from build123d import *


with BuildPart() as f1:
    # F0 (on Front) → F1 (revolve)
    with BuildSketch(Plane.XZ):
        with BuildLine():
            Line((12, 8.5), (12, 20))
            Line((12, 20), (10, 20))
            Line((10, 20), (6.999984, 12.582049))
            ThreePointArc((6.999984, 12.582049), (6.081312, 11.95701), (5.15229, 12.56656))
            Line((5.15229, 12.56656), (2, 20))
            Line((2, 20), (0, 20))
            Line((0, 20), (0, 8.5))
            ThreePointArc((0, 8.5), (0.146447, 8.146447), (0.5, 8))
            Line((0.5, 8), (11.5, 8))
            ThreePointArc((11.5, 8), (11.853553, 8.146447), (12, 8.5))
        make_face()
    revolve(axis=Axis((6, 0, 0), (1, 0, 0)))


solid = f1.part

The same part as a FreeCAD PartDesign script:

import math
import FreeCAD as App
import Part
import Sketcher
from FreeCAD import Vector
Q = App.Units.Quantity

doc = App.newDocument("Part")
body = doc.addObject("PartDesign::Body", "Body")

# Sketch on XZ plane
sketch1 = body.newObject("Sketcher::SketchObject", "Sketch")
sketch1.AttachmentSupport = (doc.getObject("XZ_Plane"), [""])
sketch1.MapMode = "FlatFace"
sketch1.addGeometry([
    Part.LineSegment(Vector(12, 8.5, 0), Vector(12, 20, 0)),  # 0
    Part.LineSegment(Vector(12, 20, 0), Vector(10, 20, 0)),  # 1
    Part.LineSegment(Vector(10, 20, 0), Vector(6.999984, 12.582049, 0)),  # 2
    Part.ArcOfCircle(Part.Circle(Vector(6.072929, 12.956975, 0), Vector(0, 0, 1), 1), math.radians(-157.019679), math.radians(-22.019736)),  # 3
    Part.LineSegment(Vector(5.15229, 12.56656, 0), Vector(2, 20, 0)),  # 4
    Part.LineSegment(Vector(2, 20, 0), Vector(0, 20, 0)),  # 5
    Part.LineSegment(Vector(0, 20, 0), Vector(0, 8.5, 0)),  # 6
    Part.ArcOfCircle(Part.Circle(Vector(0.500001, 8.500001, 0), Vector(0, 0, 1), 0.500001), math.radians(-179.999847), math.radians(-90.000153)),  # 7
    Part.LineSegment(Vector(0.5, 8, 0), Vector(11.5, 8, 0)),  # 8
    Part.ArcOfCircle(Part.Circle(Vector(11.499999, 8.500001, 0), Vector(0, 0, 1), 0.500001), math.radians(-89.999847), math.radians(-0.000153)),  # 9
], False)
sketch1.addConstraint([
    Sketcher.Constraint("Coincident", 0, 2, 1, 1),
    Sketcher.Constraint("Coincident", 1, 2, 2, 1),
    Sketcher.Constraint("Tangent", 2, 2, 3, 2),
    Sketcher.Constraint("Tangent", 3, 1, 4, 1),
    Sketcher.Constraint("Coincident", 4, 2, 5, 1),
    Sketcher.Constraint("Coincident", 5, 2, 6, 1),
    Sketcher.Constraint("Coincident", 6, 2, 7, 1),
    Sketcher.Constraint("Coincident", 7, 2, 8, 1),
    Sketcher.Constraint("Coincident", 8, 2, 9, 1),
    Sketcher.Constraint("Coincident", 9, 2, 0, 1),
    Sketcher.Constraint("Vertical", 0),
    Sketcher.Constraint("Horizontal", 1),
    Sketcher.Constraint("Horizontal", 5),
    Sketcher.Constraint("Vertical", 6),
    Sketcher.Constraint("Horizontal", 8),
    Sketcher.Constraint("Equal", 7, 9),
    Sketcher.Constraint("PointOnObject", 5, 2, -2),
    Sketcher.Constraint("Horizontal", 1, 2, 4, 2),
    Sketcher.Constraint("Horizontal", 9, 3, 6, 2),
    Sketcher.Constraint("Horizontal", 6, 2, 9, 2),
    Sketcher.Constraint("Vertical", 9, 3, 8, 2),
    Sketcher.Constraint("Equal", 1, 5),
    Sketcher.Constraint("Radius", 3, Q("1 mm")),
    Sketcher.Constraint("Radius", 7, Q("0.500001 mm")),
    Sketcher.Constraint("DistanceX", 1, 2, 1, 1, Q("2 mm")),
    Sketcher.Constraint("DistanceX", 8, 1, 8, 2, Q("11 mm")),
    Sketcher.Constraint("DistanceY", 0, 1, 0, 2, Q("11.5 mm")),
    Sketcher.Constraint("DistanceX", -1, 1, 0, 2, Q("12 mm")),
    Sketcher.Constraint("DistanceY", -1, 1, 0, 2, Q("20 mm")),
    Sketcher.Constraint("Distance", 2, Q("8.001631 mm")),
    Sketcher.Constraint("DistanceX", -1, 1, 3, 3, Q("6.072929 mm")),
])
revolution = body.newObject("PartDesign::Revolution", "Revolution")
revolution.Profile = sketch1
revolution.ReferenceAxis = (sketch1, ["H_Axis"])
revolution.Angle = 360

doc.recompute()
